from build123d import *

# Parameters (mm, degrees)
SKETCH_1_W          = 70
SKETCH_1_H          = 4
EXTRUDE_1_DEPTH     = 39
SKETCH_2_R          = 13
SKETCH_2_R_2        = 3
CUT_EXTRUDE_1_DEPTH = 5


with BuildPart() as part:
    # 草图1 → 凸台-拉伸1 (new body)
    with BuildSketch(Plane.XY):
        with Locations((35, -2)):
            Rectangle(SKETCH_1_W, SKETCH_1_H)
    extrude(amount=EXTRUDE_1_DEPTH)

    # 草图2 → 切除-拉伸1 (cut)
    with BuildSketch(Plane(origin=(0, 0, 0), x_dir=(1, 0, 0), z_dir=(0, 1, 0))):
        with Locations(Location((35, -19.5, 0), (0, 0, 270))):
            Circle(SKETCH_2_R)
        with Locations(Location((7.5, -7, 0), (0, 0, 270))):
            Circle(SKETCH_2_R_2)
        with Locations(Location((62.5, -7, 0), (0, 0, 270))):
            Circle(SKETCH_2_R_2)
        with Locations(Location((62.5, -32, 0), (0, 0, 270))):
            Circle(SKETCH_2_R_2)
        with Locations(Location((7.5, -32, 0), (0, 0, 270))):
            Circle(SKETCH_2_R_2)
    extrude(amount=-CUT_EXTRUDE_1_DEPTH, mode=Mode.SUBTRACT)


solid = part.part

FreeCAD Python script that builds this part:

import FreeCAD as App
import Part
import Sketcher

V = App.Vector
Q = App.Units.Quantity


def add_polygon(sketch, points):
    """Adds a closed chain of lines whose ends are joined by coincident constraints."""
    first, n = sketch.GeometryCount, len(points)
    for a, b in zip(points, points[1:] + points[:1]):
        sketch.addGeometry(Part.LineSegment(App.Vector(*a, 0), App.Vector(*b, 0)), False)
    for i in range(n):
        sketch.addConstraint(Sketcher.Constraint("Coincident", first + i, 2, first + (i + 1) % n, 1))

doc = App.newDocument("Part")
params = doc.addObject("Spreadsheet::Sheet", "Params")
for row, (alias, value) in enumerate([
    ("sketch1_width", "70 mm"),
    ("sketch1_height", "4 mm"),
    ("pad1_length", "39 mm"),
    ("sketch2_diameter", "26 mm"),
    ("sketch2_diameter2", "6 mm"),
    ("pocket1_length", "5 mm"),
], start=1):
    params.set(f"A{row}", alias)
    params.set(f"B{row}", "=" + value)
    params.setAlias(f"B{row}", alias)

body = doc.addObject("PartDesign::Body", "Body")

# Sketch on XY plane
sketch1 = body.newObject("Sketcher::SketchObject", "Sketch")
sketch1.AttachmentSupport = (doc.getObject("XY_Plane"), [""])
sketch1.MapMode = "FlatFace"
add_polygon(sketch1, [(0, 0), (0, -4), (70, -4), (70, 0)])  # lines 0-3
sketch1.addConstraint(Sketcher.Constraint("Vertical", 0))
sketch1.addConstraint(Sketcher.Constraint("Horizontal", 1))
sketch1.addConstraint(Sketcher.Constraint("Vertical", 2))
sketch1.addConstraint(Sketcher.Constraint("Horizontal", 3))
sketch1.addConstraint(Sketcher.Constraint("Coincident", 3, 2, -1, 1))
sketch1.addConstraint(Sketcher.Constraint("DistanceX", 1, 1, 1, 2, Q("70 mm")))
sketch1.addConstraint(Sketcher.Constraint("DistanceY", 0, 2, 0, 1, Q("4 mm")))
sketch1.setExpression("Constraints[9]", "Params.sketch1_width")
sketch1.setExpression("Constraints[10]", "Params.sketch1_height")
pad1 = body.newObject("PartDesign::Pad", "Pad")
pad1.Profile = sketch1
pad1.setExpression("Length", "Params.pad1_length")

# Sketch on XZ plane
sketch2 = body.newObject("Sketcher::SketchObject", "Sketch001")
sketch2.AttachmentSupport = (doc.getObject("XZ_Plane"), [""])
sketch2.MapMode = "FlatFace"
sketch2.addGeometry(Part.Circle(V(35, 19.5, 0), V(0, 0, 1), 13), False)
sketch2.addGeometry(Part.Circle(V(7.5, 7, 0), V(0, 0, 1), 3), False)
sketch2.addGeometry(Part.Circle(V(62.5, 7, 0), V(0, 0, 1), 3), False)
sketch2.addGeometry(Part.Circle(V(62.5, 32, 0), V(0, 0, 1), 3), False)
sketch2.addGeometry(Part.Circle(V(7.5, 32, 0), V(0, 0, 1), 3), False)
sketch2.addConstraint(Sketcher.Constraint("Equal", 1, 2))
sketch2.addConstraint(Sketcher.Constraint("Equal", 2, 3))
sketch2.addConstraint(Sketcher.Constraint("Equal", 3, 4))
sketch2.addConstraint(Sketcher.Constraint("Horizontal", 1, 3, 2, 3))
sketch2.addConstraint(Sketcher.Constraint("Horizontal", 3, 3, 4, 3))
sketch2.addConstraint(Sketcher.Constraint("Vertical", 2, 3, 3, 3))
sketch2.addConstraint(Sketcher.Constraint("Vertical", 1, 3, 4, 3))
sketch2.addConstraint(Sketcher.Constraint("Diameter", 0, Q("26 mm")))
sketch2.addConstraint(Sketcher.Constraint("Diameter", 1, Q("6 mm")))
sketch2.addConstraint(Sketcher.Constraint("DistanceX", -1, 1, 0, 3, Q("35 mm")))
sketch2.addConstraint(Sketcher.Constraint("DistanceY", -1, 1, 1, 3, Q("7 mm")))
sketch2.addConstraint(Sketcher.Constraint("DistanceY", -1, 1, 3, 3, Q("32 mm")))
sketch2.addConstraint(Sketcher.Constraint("DistanceX", 1, 3, 2, 3, Q("55 mm")))
sketch2.addConstraint(Sketcher.Constraint("DistanceY", -1, 1, 0, 3, Q("19.5 mm")))
sketch2.addConstraint(Sketcher.Constraint("DistanceX", -1, 1, 1, 3, Q("7.5 mm")))
sketch2.setExpression("Constraints[7]", "Params.sketch2_diameter")
sketch2.setExpression("Constraints[8]", "Params.sketch2_diameter2")
pocket1 = body.newObject("PartDesign::Pocket", "Pocket")
pocket1.Profile = sketch2
pocket1.setExpression("Length", "Params.pocket1_length")
pocket1.Reversed = True

doc.recompute()
